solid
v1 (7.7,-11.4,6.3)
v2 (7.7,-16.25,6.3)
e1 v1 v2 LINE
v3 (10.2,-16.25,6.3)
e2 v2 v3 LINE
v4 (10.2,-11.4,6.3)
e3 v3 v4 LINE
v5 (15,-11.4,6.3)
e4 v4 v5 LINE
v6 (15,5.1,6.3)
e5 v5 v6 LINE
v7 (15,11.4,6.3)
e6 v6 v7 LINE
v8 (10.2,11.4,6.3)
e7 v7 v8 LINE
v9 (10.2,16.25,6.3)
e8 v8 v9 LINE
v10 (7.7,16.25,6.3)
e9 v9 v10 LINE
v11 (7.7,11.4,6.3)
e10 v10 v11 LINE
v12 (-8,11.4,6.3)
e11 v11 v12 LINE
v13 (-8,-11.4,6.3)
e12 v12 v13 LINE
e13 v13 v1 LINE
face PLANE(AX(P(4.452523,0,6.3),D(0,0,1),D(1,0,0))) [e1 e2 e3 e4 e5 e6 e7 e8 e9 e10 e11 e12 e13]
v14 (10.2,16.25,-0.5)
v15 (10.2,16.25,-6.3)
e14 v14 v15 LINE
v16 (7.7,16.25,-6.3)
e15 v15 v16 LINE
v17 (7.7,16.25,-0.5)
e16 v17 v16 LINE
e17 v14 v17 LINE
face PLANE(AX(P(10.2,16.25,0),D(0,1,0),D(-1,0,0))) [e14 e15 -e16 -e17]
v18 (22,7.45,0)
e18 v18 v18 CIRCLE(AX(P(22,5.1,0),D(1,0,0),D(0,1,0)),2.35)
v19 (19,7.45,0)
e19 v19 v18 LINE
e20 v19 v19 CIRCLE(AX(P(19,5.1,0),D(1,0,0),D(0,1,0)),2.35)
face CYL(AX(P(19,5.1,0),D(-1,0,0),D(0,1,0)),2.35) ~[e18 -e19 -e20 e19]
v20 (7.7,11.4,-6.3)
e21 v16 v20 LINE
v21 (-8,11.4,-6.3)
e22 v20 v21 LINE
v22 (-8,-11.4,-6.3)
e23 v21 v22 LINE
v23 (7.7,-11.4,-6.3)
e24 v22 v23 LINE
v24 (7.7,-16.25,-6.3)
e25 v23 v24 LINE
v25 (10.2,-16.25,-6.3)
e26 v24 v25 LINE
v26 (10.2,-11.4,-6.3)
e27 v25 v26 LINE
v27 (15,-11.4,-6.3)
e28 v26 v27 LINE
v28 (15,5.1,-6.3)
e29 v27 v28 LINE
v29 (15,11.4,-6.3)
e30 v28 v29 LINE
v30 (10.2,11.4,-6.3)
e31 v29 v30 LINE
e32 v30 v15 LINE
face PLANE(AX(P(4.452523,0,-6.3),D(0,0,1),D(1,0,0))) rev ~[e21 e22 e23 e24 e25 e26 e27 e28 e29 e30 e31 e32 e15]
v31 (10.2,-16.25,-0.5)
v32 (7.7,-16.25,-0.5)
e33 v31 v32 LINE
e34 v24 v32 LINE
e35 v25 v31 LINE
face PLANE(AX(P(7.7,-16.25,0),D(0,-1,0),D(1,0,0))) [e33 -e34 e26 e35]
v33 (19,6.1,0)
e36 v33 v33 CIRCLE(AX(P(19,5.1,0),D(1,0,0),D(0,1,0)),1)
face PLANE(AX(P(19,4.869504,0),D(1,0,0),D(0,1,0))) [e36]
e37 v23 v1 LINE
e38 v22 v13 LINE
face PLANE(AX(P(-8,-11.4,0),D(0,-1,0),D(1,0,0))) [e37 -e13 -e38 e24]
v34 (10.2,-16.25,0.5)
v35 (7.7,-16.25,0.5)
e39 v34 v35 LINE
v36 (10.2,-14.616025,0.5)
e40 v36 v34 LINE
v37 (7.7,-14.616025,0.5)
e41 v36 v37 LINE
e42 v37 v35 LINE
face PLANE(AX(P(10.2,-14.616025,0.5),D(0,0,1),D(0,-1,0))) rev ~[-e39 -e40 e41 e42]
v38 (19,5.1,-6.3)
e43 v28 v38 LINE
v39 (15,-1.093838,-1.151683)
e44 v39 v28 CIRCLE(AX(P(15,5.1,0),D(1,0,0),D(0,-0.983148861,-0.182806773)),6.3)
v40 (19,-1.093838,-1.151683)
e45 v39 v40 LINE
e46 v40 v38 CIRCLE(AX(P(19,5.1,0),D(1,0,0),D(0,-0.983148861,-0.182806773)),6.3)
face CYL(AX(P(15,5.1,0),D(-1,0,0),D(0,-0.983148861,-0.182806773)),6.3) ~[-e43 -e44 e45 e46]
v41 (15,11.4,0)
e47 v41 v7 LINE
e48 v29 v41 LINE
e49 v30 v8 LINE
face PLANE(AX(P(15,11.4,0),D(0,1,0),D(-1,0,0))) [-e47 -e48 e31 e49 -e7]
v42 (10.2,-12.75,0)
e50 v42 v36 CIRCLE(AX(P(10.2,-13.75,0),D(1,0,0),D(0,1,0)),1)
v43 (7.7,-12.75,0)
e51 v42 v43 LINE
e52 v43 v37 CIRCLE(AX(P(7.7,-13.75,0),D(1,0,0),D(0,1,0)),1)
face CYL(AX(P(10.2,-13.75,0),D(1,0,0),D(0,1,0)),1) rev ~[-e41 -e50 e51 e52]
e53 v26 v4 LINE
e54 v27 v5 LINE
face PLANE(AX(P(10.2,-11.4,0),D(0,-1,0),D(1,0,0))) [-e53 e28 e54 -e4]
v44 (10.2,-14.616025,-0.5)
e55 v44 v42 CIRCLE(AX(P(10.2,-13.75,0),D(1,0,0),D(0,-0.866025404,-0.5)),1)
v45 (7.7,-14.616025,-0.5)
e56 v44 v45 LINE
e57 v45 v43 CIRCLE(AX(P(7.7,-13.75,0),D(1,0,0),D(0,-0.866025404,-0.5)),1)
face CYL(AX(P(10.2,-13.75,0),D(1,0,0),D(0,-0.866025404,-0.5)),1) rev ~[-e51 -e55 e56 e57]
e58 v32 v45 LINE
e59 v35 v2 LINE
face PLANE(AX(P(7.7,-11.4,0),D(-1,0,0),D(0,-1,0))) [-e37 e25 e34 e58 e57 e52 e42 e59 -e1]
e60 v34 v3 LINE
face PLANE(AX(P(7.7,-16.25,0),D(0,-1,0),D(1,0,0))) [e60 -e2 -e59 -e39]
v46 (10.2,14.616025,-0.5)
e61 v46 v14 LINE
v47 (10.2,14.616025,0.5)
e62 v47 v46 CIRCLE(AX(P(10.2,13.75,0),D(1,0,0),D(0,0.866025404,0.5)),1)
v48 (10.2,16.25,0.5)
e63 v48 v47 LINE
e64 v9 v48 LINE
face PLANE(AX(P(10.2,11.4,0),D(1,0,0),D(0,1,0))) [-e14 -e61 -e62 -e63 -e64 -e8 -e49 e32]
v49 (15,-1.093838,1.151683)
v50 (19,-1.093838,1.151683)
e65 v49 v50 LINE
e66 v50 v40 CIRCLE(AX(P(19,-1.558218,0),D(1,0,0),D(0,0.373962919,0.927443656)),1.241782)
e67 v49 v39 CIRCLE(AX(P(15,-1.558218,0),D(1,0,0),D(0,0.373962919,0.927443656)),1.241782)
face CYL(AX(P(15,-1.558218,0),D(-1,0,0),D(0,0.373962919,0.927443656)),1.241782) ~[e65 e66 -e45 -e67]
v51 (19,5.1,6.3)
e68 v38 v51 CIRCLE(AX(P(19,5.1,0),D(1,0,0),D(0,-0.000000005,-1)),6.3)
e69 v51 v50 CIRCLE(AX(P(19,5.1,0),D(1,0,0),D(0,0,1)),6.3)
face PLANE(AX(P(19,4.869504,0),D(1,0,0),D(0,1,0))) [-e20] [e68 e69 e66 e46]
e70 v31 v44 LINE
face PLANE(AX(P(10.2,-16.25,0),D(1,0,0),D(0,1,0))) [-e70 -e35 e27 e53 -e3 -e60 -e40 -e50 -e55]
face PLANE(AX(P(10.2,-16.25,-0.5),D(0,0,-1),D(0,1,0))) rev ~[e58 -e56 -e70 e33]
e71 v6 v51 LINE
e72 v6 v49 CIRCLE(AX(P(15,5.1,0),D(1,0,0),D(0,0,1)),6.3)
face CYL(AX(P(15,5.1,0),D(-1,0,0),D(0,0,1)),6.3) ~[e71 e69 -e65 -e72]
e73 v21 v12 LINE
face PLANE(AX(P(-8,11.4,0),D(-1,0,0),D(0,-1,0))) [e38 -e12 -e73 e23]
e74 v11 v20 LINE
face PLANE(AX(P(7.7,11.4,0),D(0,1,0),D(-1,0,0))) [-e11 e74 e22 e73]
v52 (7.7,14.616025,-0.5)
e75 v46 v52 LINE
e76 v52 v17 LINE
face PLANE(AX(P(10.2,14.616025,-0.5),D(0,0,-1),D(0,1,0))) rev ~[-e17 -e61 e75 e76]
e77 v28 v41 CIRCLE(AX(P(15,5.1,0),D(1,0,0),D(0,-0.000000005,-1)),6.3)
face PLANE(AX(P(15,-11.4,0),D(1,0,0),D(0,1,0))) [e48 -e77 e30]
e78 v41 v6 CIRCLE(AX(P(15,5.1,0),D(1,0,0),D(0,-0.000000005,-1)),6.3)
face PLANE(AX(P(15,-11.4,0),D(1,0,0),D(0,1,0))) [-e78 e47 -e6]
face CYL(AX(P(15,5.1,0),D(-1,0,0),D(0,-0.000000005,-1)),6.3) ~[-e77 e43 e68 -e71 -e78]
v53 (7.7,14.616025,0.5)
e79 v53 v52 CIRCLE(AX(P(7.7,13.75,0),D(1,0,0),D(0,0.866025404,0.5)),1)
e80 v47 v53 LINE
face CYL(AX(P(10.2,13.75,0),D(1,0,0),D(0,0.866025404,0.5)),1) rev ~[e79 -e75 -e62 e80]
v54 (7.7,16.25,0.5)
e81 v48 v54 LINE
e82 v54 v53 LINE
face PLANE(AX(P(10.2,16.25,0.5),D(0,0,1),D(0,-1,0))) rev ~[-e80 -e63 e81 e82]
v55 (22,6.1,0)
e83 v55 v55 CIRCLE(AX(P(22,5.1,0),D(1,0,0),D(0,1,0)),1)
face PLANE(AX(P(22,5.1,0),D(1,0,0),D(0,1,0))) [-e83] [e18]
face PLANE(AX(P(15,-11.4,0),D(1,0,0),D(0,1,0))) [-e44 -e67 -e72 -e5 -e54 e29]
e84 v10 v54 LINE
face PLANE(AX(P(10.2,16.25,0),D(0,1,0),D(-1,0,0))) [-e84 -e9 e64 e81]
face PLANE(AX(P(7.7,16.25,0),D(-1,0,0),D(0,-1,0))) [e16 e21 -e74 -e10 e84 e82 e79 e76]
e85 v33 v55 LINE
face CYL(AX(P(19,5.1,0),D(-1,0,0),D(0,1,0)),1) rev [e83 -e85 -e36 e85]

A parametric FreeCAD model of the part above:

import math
import FreeCAD as App
import Part
import Sketcher


def add_polygon(sketch, points):
    """Adds a closed chain of lines whose ends are joined by coincident constraints."""
    first, n = sketch.GeometryCount, len(points)
    for a, b in zip(points, points[1:] + points[:1]):
        sketch.addGeometry(Part.LineSegment(App.Vector(*a, 0), App.Vector(*b, 0)), False)
    for i in range(n):
        sketch.addConstraint(Sketcher.Constraint("Coincident", first + i, 2, first + (i + 1) % n, 1))

doc = App.newDocument("Part")
body = doc.addObject("PartDesign::Body", "Body")

# Sketch on XY plane
sketch1 = body.newObject("Sketcher::SketchObject", "Sketch")
sketch1.AttachmentSupport = (doc.getObject("XY_Plane"), [""])
sketch1.MapMode = "FlatFace"
add_polygon(sketch1, [(7.7, 11.4), (-8, 11.4), (-8, -11.4), (7.7, -11.4), (7.7, -16.2), (10.2, -16.2), (10.2, -11.4), (15, -11.4), (15, 11.4), (10.2, 11.4), (10.2, 16.2), (7.7, 16.2)])  # lines 0-11
sketch1.addConstraint([
    Sketcher.Constraint("Horizontal", 0),
    Sketcher.Constraint("Vertical", 1),
    Sketcher.Constraint("Horizontal", 2),
    Sketcher.Constraint("Vertical", 3),
    Sketcher.Constraint("Horizontal", 4),
    Sketcher.Constraint("Vertical", 5),
    Sketcher.Constraint("Horizontal", 6),
    Sketcher.Constraint("Vertical", 7),
    Sketcher.Constraint("Horizontal", 8),
    Sketcher.Constraint("Vertical", 9),
    Sketcher.Constraint("Horizontal", 10),
    Sketcher.Constraint("Vertical", 11),
    Sketcher.Constraint("Symmetric", 5, 2, 8, 2, -1),
    Sketcher.Constraint("Symmetric", 3, 2, 10, 2, -1),
    Sketcher.Constraint("Horizontal", 2, 2, 5, 2),
    Sketcher.Constraint("Horizontal", 0, 2, 7, 2),
    Sketcher.Constraint("DistanceX", 0, 2, 0, 1, 15.7),
    Sketcher.Constraint("DistanceX", 4, 1, 4, 2, 2.5),
    Sketcher.Constraint("DistanceX", 6, 1, 6, 2, 4.8),
    Sketcher.Constraint("DistanceY", 1, 2, 1, 1, 22.8),
    Sketcher.Constraint("DistanceX", 0, 2, -1, 1, 8.0),
    Sketcher.Constraint("DistanceY", 3, 2, 3, 1, 4.85),
])
pad1 = body.newObject("PartDesign::Pad", "Pad")
pad1.Profile = sketch1
pad1.Length = 12.6
pad1.Midplane = True

# Sketch on YZ plane
sketch2 = body.newObject("Sketcher::SketchObject", "Sketch001")
sketch2.AttachmentSupport = (doc.getObject("YZ_Plane"), [""])
sketch2.MapMode = "FlatFace"
sketch2.AttachmentOffset = App.Placement(App.Vector(0, 0, 15), App.Rotation())
sketch2.addGeometry([
    Part.ArcOfCircle(Part.Circle(App.Vector(5.1, 0, 0), App.Vector(0, 0, 1), 6.3), math.radians(90), math.radians(169)),
    Part.ArcOfCircle(Part.Circle(App.Vector(-1.6, 0, 0), App.Vector(0, 0, 1), 1.2), math.radians(68), math.radians(292)),
    Part.ArcOfCircle(Part.Circle(App.Vector(5.1, 0, 0), App.Vector(0, 0, 1), 6.3), math.radians(-169), math.radians(-90)),
    Part.ArcOfCircle(Part.Circle(App.Vector(5.1, 0, 0), App.Vector(0, 0, 1), 6.3), math.radians(-90), math.radians(90)),
], False)
sketch2.addConstraint([
    Sketcher.Constraint("Coincident", 0, 2, 1, 1),
    Sketcher.Constraint("Coincident", 1, 2, 2, 1),
    Sketcher.Constraint("Tangent", 2, 2, 3, 1),
    Sketcher.Constraint("Tangent", 3, 2, 0, 1),
    Sketcher.Constraint("Equal", 0, 2),
    Sketcher.Constraint("Equal", 2, 3),
    Sketcher.Constraint("Symmetric", 0, 2, 1, 2, -1),
    Sketcher.Constraint("Vertical", 3, 3, 2, 2),
    Sketcher.Constraint("Vertical", 2, 2, 3, 2),
    Sketcher.Constraint("Radius", 0, 6.3),
    Sketcher.Constraint("DistanceX", -1, 1, 0, 3, 5.1),
    Sketcher.Constraint("Radius", 1, 1.241782),
    Sketcher.Constraint("DistanceX", 1, 3, -1, 1, 1.558218),
])
pad2 = body.newObject("PartDesign::Pad", "Pad001")
pad2.Profile = sketch2
pad2.Length = 4

# Sketch on YZ plane
sketch3 = body.newObject("Sketcher::SketchObject", "Sketch002")
sketch3.AttachmentSupport = (doc.getObject("YZ_Plane"), [""])
sketch3.MapMode = "FlatFace"
sketch3.AttachmentOffset = App.Placement(App.Vector(0, 0, 19), App.Rotation())
sketch3.addGeometry([
    Part.Circle(App.Vector(5.1, 0, 0), App.Vector(0, 0, 1), 2.4),
    Part.Circle(App.Vector(5.1, 0, 0), App.Vector(0, 0, 1), 1),
], False)
sketch3.addConstraint([
    Sketcher.Constraint("Coincident", 1, 3, 0, 3),
    Sketcher.Constraint("PointOnObject", 0, 3, -1),
    Sketcher.Constraint("Diameter", 1, 2.0),
    Sketcher.Constraint("Diameter", 0, 4.7),
    Sketcher.Constraint("DistanceX", -1, 1, 0, 3, 5.1),
])
pad3 = body.newObject("PartDesign::Pad", "Pad002")
pad3.Profile = sketch3
pad3.Length = 3

# Sketch on YZ plane
sketch4 = body.newObject("Sketcher::SketchObject", "Sketch003")
sketch4.AttachmentSupport = (doc.getObject("YZ_Plane"), [""])
sketch4.MapMode = "FlatFace"
sketch4.AttachmentOffset = App.Placement(App.Vector(0, 0, 10.2), App.Rotation())
sketch4.addGeometry([
    Part.ArcOfCircle(Part.Circle(App.Vector(13.8, 0, 0), App.Vector(0, 0, 1), 1), math.radians(30), math.radians(330)),  # 0
    Part.LineSegment(App.Vector(14.6, -0.5, 0), App.Vector(16.2, -0.5, 0)),  # 1
    Part.LineSegment(App.Vector(16.2, -0.5, 0), App.Vector(16.2, 0.5, 0)),  # 2
    Part.LineSegment(App.Vector(16.2, 0.5, 0), App.Vector(14.6, 0.5, 0)),  # 3
    Part.ArcOfCircle(Part.Circle(App.Vector(-13.8, 0, 0), App.Vector(0, 0, 1), 1), math.radians(-150), math.radians(0)),  # 4
    Part.ArcOfCircle(Part.Circle(App.Vector(-13.8, 0, 0), App.Vector(0, 0, 1), 1), math.radians(0), math.radians(150)),  # 5
    Part.LineSegment(App.Vector(-14.6, 0.5, 0), App.Vector(-16.2, 0.5, 0)),  # 6
    Part.LineSegment(App.Vector(-16.2, 0.5, 0), App.Vector(-16.2, -0.5, 0)),  # 7
    Part.LineSegment(App.Vector(-16.2, -0.5, 0), App.Vector(-14.6, -0.5, 0)),  # 8
], False)
sketch4.addConstraint([
    Sketcher.Constraint("Coincident", 0, 2, 1, 1),
    Sketcher.Constraint("Coincident", 1, 2, 2, 1),
    Sketcher.Constraint("Coincident", 2, 2, 3, 1),
    Sketcher.Constraint("Coincident", 3, 2, 0, 1),
    Sketcher.Constraint("Tangent", 4, 2, 5, 1),
    Sketcher.Constraint("Coincident", 5, 2, 6, 1),
    Sketcher.Constraint("Coincident", 6, 2, 7, 1),
    Sketcher.Constraint("Coincident", 7, 2, 8, 1),
    Sketcher.Constraint("Coincident", 8, 2, 4, 1),
    Sketcher.Constraint("Horizontal", 1),
    Sketcher.Constraint("Vertical", 2),
    Sketcher.Constraint("Horizontal", 3),
    Sketcher.Constraint("Horizontal", 6),
    Sketcher.Constraint("Vertical", 7),
    Sketcher.Constraint("Horizontal", 8),
    Sketcher.Constraint("Equal", 0, 4),
    Sketcher.Constraint("Equal", 4, 5),
    Sketcher.Constraint("Symmetric", 0, 3, 4, 3, -1, 1),
    Sketcher.Constraint("Symmetric", 1, 2, 6, 2, -1, 1),
    Sketcher.Constraint("Symmetric", 3, 2, 5, 2, -2),
    Sketcher.Constraint("PointOnObject", 4, 2, -1),
    Sketcher.Constraint("Horizontal", 1, 2, 7, 2),
    Sketcher.Constraint("Radius", 0, 1.0),
    Sketcher.Constraint("DistanceY", 2, 1, 2, 2, 1.0),
    Sketcher.Constraint("DistanceX", 4, 3, 1, 2, 30.0),
    Sketcher.Constraint("DistanceX", 4, 3, 0, 3, 27.5),
])
pocket1 = body.newObject("PartDesign::Pocket", "Pocket")
pocket1.Profile = sketch4
pocket1.Type = "ThroughAll"

doc.recompute()
